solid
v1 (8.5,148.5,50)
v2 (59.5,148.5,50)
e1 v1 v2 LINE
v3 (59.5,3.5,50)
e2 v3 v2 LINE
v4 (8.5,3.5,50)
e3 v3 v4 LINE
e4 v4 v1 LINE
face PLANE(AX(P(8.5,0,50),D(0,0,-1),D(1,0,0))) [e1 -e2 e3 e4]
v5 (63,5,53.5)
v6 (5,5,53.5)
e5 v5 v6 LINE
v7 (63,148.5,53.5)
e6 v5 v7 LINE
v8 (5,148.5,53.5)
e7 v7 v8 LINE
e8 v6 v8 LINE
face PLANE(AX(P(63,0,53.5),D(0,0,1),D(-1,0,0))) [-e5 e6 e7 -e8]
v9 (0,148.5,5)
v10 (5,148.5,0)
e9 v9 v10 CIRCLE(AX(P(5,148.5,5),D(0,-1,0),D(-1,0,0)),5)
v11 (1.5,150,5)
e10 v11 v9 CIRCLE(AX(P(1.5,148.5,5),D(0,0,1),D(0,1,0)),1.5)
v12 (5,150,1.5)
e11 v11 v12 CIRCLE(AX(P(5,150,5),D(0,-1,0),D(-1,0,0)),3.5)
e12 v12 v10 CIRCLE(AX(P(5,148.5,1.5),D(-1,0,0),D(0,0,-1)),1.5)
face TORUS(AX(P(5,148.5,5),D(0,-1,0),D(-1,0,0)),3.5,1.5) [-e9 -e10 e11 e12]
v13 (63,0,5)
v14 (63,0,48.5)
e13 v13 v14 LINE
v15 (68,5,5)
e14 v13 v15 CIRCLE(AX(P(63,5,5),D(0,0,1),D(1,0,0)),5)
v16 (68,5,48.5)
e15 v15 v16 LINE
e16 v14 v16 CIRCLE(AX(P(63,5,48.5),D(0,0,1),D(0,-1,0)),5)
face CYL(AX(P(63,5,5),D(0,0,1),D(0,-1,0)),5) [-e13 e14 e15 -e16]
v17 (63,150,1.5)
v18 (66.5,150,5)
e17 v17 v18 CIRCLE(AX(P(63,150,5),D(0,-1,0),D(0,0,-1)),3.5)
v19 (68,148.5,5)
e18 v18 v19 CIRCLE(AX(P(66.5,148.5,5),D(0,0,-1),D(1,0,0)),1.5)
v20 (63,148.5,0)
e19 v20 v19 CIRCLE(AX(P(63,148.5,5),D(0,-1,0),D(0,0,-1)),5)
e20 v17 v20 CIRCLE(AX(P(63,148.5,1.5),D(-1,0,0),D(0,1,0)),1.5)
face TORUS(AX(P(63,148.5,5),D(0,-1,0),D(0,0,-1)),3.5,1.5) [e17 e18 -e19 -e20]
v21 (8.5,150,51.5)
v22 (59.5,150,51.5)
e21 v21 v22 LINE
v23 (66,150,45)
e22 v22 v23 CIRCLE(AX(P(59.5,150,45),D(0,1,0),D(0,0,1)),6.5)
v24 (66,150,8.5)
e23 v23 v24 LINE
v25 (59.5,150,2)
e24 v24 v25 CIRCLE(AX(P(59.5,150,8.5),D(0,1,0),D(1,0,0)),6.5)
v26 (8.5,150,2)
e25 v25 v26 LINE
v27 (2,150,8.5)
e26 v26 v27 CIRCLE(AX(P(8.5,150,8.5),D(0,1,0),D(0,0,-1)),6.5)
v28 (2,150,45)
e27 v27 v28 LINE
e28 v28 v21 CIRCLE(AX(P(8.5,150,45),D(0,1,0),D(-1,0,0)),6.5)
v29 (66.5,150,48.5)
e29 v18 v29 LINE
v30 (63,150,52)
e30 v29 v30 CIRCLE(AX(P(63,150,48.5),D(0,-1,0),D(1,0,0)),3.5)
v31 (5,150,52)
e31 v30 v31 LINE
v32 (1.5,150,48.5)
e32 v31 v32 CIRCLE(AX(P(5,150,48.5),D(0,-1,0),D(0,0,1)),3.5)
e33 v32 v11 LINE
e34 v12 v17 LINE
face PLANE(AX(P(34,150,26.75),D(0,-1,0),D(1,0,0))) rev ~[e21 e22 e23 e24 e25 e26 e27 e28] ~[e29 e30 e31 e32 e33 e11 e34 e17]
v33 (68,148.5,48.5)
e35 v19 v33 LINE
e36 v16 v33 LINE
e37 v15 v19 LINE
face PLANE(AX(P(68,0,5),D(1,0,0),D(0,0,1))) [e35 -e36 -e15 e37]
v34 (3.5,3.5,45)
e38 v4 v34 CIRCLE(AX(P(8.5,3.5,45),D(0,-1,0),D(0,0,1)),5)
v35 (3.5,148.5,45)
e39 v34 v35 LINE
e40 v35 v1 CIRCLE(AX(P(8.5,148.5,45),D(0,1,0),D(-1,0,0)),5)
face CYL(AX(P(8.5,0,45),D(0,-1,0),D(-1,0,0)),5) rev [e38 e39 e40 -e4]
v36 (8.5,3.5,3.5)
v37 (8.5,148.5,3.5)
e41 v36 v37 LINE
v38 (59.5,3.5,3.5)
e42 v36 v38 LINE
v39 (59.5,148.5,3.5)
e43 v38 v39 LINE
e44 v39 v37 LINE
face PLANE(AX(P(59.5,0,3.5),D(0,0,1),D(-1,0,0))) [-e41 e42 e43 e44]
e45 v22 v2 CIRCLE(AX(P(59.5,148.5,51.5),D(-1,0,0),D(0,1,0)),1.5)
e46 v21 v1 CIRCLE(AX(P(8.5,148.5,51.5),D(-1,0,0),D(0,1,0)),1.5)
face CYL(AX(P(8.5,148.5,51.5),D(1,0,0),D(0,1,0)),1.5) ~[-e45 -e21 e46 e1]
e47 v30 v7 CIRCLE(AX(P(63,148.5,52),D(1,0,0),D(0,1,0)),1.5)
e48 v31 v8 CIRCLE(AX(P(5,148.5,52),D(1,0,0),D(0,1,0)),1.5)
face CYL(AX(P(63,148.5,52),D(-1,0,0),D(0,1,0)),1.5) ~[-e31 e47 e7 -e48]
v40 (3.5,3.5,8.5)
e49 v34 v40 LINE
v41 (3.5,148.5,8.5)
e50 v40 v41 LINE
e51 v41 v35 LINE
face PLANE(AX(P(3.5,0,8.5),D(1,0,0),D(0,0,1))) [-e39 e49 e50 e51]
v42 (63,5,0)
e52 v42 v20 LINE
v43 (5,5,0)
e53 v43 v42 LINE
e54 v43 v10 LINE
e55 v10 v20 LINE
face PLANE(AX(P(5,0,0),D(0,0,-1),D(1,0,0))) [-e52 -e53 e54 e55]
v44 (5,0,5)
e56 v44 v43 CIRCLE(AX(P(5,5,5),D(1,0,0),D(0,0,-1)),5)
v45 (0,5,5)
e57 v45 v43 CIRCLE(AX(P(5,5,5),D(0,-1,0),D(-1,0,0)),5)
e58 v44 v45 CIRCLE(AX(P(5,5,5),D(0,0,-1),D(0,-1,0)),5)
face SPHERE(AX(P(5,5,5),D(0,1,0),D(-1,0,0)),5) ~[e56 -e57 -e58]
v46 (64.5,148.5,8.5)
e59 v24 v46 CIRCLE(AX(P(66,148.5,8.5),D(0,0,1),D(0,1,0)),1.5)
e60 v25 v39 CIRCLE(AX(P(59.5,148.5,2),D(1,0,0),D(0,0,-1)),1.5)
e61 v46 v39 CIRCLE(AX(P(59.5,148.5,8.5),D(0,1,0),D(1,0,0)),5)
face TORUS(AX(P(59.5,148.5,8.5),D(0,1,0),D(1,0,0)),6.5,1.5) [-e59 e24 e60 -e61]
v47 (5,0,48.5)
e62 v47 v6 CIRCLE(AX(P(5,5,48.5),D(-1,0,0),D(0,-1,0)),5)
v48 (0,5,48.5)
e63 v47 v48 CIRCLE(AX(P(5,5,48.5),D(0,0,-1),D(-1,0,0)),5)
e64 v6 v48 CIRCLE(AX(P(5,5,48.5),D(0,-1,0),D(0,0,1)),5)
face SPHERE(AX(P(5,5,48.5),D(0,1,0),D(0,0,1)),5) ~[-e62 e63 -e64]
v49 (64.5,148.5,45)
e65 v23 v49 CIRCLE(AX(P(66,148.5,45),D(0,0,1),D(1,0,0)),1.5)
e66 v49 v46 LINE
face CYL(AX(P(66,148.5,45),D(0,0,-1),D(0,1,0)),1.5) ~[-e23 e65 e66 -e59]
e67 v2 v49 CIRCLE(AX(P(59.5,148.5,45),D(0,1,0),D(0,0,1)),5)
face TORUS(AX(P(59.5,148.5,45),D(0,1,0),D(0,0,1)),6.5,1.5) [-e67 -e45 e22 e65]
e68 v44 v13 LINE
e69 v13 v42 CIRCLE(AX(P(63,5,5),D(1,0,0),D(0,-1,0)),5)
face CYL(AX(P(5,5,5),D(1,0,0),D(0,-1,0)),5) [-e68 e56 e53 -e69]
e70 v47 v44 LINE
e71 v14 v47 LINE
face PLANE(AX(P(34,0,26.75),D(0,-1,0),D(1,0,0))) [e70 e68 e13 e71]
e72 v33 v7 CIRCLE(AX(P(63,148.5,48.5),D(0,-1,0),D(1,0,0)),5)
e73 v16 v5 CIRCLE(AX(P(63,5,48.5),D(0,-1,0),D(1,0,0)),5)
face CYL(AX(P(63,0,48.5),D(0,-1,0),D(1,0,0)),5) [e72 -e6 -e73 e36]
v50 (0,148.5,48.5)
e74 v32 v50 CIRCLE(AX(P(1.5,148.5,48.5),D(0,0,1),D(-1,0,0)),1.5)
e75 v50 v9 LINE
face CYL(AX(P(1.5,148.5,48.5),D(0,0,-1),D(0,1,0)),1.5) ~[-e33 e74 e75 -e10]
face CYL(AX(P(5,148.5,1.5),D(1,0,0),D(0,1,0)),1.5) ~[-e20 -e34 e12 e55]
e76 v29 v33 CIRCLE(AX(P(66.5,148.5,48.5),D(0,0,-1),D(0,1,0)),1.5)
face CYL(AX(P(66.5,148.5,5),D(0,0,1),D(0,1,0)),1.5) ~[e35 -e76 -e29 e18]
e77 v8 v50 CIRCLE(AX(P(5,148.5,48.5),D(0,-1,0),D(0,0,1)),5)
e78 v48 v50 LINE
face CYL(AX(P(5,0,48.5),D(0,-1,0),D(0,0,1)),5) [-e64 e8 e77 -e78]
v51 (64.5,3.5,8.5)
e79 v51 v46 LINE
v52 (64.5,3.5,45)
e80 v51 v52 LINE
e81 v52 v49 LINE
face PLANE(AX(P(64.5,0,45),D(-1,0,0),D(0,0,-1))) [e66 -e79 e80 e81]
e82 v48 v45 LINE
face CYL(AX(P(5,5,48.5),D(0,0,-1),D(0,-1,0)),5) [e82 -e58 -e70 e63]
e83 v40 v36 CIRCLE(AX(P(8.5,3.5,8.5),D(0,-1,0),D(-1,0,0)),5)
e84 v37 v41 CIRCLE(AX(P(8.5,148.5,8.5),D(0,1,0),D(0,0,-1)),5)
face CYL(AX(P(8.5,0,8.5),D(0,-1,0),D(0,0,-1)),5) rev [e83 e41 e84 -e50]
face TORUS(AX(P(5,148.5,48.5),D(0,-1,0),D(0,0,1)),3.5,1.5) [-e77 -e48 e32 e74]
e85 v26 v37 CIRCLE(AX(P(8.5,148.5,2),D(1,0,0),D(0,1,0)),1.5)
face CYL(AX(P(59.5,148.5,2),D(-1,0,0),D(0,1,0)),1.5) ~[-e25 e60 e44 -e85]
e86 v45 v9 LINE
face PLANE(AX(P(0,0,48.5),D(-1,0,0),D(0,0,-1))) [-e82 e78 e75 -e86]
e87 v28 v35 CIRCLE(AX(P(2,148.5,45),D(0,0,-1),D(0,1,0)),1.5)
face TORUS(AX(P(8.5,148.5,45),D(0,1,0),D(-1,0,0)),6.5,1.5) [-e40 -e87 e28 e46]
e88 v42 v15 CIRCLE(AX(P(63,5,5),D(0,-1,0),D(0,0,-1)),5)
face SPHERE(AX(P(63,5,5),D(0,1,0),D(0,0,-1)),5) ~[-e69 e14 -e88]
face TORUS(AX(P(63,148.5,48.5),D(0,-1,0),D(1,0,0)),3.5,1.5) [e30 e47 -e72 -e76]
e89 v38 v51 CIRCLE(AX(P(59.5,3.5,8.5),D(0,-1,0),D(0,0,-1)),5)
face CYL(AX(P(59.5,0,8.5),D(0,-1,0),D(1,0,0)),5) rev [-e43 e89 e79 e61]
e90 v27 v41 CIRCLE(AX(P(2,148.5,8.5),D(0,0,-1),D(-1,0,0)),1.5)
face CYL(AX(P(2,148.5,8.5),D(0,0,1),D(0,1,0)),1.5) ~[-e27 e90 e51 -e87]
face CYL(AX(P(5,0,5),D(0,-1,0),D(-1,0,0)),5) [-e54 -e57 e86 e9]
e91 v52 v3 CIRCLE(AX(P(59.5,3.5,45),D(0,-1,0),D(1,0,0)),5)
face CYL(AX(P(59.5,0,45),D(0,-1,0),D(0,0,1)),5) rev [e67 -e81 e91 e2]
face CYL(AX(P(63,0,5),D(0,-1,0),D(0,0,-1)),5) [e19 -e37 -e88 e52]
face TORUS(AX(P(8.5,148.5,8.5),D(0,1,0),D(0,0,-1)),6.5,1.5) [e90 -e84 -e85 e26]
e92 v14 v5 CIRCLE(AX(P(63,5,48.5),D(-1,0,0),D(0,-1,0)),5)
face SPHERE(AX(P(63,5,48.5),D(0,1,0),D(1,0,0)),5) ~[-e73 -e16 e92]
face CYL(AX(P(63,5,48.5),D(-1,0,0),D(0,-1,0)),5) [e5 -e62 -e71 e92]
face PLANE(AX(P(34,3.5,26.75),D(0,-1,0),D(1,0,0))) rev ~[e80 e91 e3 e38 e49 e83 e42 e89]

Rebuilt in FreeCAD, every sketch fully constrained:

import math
import FreeCAD as App
import Part
import Sketcher

V = App.Vector
Q = App.Units.Quantity


def edges_at(feature, points):
    """Names of the edges that pass closest to the given points."""
    edges = feature.Shape.Edges
    near = lambda p: min(range(len(edges)), key=lambda i: edges[i].distToShape(Part.Vertex(*p))[0])
    return sorted({f"Edge{near(p) + 1}" for p in points})

doc = App.newDocument("Part")
params = doc.addObject("Spreadsheet::Sheet", "Params")
for row, (alias, value) in enumerate([
    ("sketch1_radius", "5 mm"),
    ("sketch1_width", "51 mm"),
    ("sketch1_height", "36.5 mm"),
    ("pad1_length", "3.5 mm"),
    ("sketch2_radius", "5 mm"),
    ("sketch2_width", "58 mm"),
    ("sketch2_width2", "51 mm"),
    ("sketch2_height", "43.5 mm"),
    ("sketch2_height2", "36.5 mm"),
    ("pad2_length", "150 mm"),
    ("fillet_radius", "5 mm"),
    ("fillet2_radius", "1.5 mm"),
], start=1):
    params.set(f"A{row}", alias)
    params.set(f"B{row}", "=" + value)
    params.setAlias(f"B{row}", alias)

body = doc.addObject("PartDesign::Body", "Body")

sketch1 = body.newObject("Sketcher::SketchObject", "Sketch")
sketch1.AttachmentSupport = (doc.getObject("XZ_Plane"), [""])
sketch1.MapMode = "FlatFace"
sketch1.addGeometry([
    Part.ArcOfCircle(Part.Circle(V(8, 8, 0), V(0, 0, 1), 5), math.radians(180), math.radians(270)),
    Part.LineSegment(V(8, 4, 0), V(60, 4, 0)),
    Part.ArcOfCircle(Part.Circle(V(60, 8, 0), V(0, 0, 1), 5), math.radians(-90), math.radians(0)),
    Part.LineSegment(V(64, 8, 0), V(64, 45, 0)),
    Part.ArcOfCircle(Part.Circle(V(60, 45, 0), V(0, 0, 1), 5), math.radians(0), math.radians(90)),
    Part.LineSegment(V(60, 50, 0), V(8, 50, 0)),
    Part.ArcOfCircle(Part.Circle(V(8, 45, 0), V(0, 0, 1), 5), math.radians(90), math.radians(180)),
    Part.LineSegment(V(4, 45, 0), V(4, 8, 0)),
], False)
sketch1.addConstraint([
    Sketcher.Constraint("Tangent", 0, 2, 1, 1),
    Sketcher.Constraint("Tangent", 1, 2, 2, 1),
    Sketcher.Constraint("Tangent", 2, 2, 3, 1),
    Sketcher.Constraint("Tangent", 3, 2, 4, 1),
    Sketcher.Constraint("Tangent", 4, 2, 5, 1),
    Sketcher.Constraint("Tangent", 5, 2, 6, 1),
    Sketcher.Constraint("Tangent", 6, 2, 7, 1),
    Sketcher.Constraint("Tangent", 7, 2, 0, 1),
    Sketcher.Constraint("Horizontal", 1),
    Sketcher.Constraint("Vertical", 3),
    Sketcher.Constraint("Horizontal", 5),
    Sketcher.Constraint("Vertical", 7),
    Sketcher.Constraint("Equal", 0, 2),
    Sketcher.Constraint("Equal", 2, 4),
    Sketcher.Constraint("Equal", 4, 6),
    Sketcher.Constraint("Radius", 0, Q("5 mm")),
    Sketcher.Constraint("DistanceX", 1, 1, 1, 2, Q("51 mm")),
    Sketcher.Constraint("DistanceY", 3, 1, 3, 2, Q("36.5 mm")),
    Sketcher.Constraint("DistanceY", -1, 1, 4, 3, Q("45 mm")),
    Sketcher.Constraint("DistanceX", -1, 1, 0, 3, Q("8.5 mm")),
])
sketch1.setExpression("Constraints[15]", "Params.sketch1_radius")
sketch1.setExpression("Constraints[16]", "Params.sketch1_width")
sketch1.setExpression("Constraints[17]", "Params.sketch1_height")
pad1 = body.newObject("PartDesign::Pad", "Pad")
pad1.Profile = sketch1
pad1.setExpression("Length", "Params.pad1_length")
pad1.Reversed = True

sketch2 = body.newObject("Sketcher::SketchObject", "Sketch001")
sketch2.AttachmentSupport = (doc.getObject("XZ_Plane"), [""])
sketch2.MapMode = "FlatFace"
sketch2.addGeometry([
    Part.ArcOfCircle(Part.Circle(V(5, 5, 0), V(0, 0, 1), 5), math.radians(180), math.radians(270)),
    Part.LineSegment(V(5, 0, 0), V(63, 0, 0)),
    Part.ArcOfCircle(Part.Circle(V(63, 5, 0), V(0, 0, 1), 5), math.radians(-90), math.radians(0)),
    Part.LineSegment(V(68, 5, 0), V(68, 48, 0)),
    Part.ArcOfCircle(Part.Circle(V(63, 48, 0), V(0, 0, 1), 5), math.radians(0), math.radians(90)),
    Part.LineSegment(V(63, 54, 0), V(5, 54, 0)),
    Part.ArcOfCircle(Part.Circle(V(5, 48, 0), V(0, 0, 1), 5), math.radians(90), math.radians(180)),
    Part.LineSegment(V(0, 48, 0), V(0, 5, 0)),
    Part.ArcOfCircle(Part.Circle(V(60, 8, 0), V(0, 0, 1), 5), math.radians(-90), math.radians(0)),
    Part.LineSegment(V(60, 4, 0), V(8, 4, 0)),
    Part.ArcOfCircle(Part.Circle(V(8, 8, 0), V(0, 0, 1), 5), math.radians(180), math.radians(270)),
    Part.LineSegment(V(4, 8, 0), V(4, 45, 0)),
    Part.ArcOfCircle(Part.Circle(V(8, 45, 0), V(0, 0, 1), 5), math.radians(90), math.radians(180)),
    Part.LineSegment(V(8, 50, 0), V(60, 50, 0)),
    Part.ArcOfCircle(Part.Circle(V(60, 45, 0), V(0, 0, 1), 5), math.radians(0), math.radians(90)),
    Part.LineSegment(V(64, 45, 0), V(64, 8, 0)),
], False)
sketch2.addConstraint([
    Sketcher.Constraint("Tangent", 0, 2, 1, 1),
    Sketcher.Constraint("Tangent", 1, 2, 2, 1),
    Sketcher.Constraint("Tangent", 2, 2, 3, 1),
    Sketcher.Constraint("Tangent", 3, 2, 4, 1),
    Sketcher.Constraint("Tangent", 4, 2, 5, 1),
    Sketcher.Constraint("Tangent", 5, 2, 6, 1),
    Sketcher.Constraint("Tangent", 6, 2, 7, 1),
    Sketcher.Constraint("Tangent", 7, 2, 0, 1),
    Sketcher.Constraint("Tangent", 8, 1, 9, 1),
    Sketcher.Constraint("Tangent", 9, 2, 10, 2),
    Sketcher.Constraint("Tangent", 10, 1, 11, 1),
    Sketcher.Constraint("Tangent", 11, 2, 12, 2),
    Sketcher.Constraint("Tangent", 12, 1, 13, 1),
    Sketcher.Constraint("Tangent", 13, 2, 14, 2),
    Sketcher.Constraint("Tangent", 14, 1, 15, 1),
    Sketcher.Constraint("Tangent", 15, 2, 8, 2),
    Sketcher.Constraint("Horizontal", 1),
    Sketcher.Constraint("Vertical", 3),
    Sketcher.Constraint("Horizontal", 5),
    Sketcher.Constraint("Vertical", 7),
    Sketcher.Constraint("Horizontal", 9),
    Sketcher.Constraint("Vertical", 11),
    Sketcher.Constraint("Horizontal", 13),
    Sketcher.Constraint("Vertical", 15),
    Sketcher.Constraint("Equal", 0, 2),
    Sketcher.Constraint("Equal", 2, 4),
    Sketcher.Constraint("Equal", 4, 6),
    Sketcher.Constraint("Equal", 6, 8),
    Sketcher.Constraint("Equal", 8, 10),
    Sketcher.Constraint("Equal", 10, 12),
    Sketcher.Constraint("Equal", 12, 14),
    Sketcher.Constraint("PointOnObject", 0, 2, -1),
    Sketcher.Constraint("PointOnObject", 6, 2, -2),
    Sketcher.Constraint("Radius", 0, Q("5 mm")),
    Sketcher.Constraint("DistanceX", 1, 1, 1, 2, Q("58 mm")),
    Sketcher.Constraint("DistanceX", 9, 2, 9, 1, Q("51 mm")),
    Sketcher.Constraint("DistanceY", 3, 1, 3, 2, Q("43.5 mm")),
    Sketcher.Constraint("DistanceY", 11, 1, 11, 2, Q("36.5 mm")),
    Sketcher.Constraint("DistanceY", -1, 1, 12, 3, Q("45 mm")),
    Sketcher.Constraint("DistanceX", -1, 1, 8, 3, Q("59.5 mm")),
])
sketch2.setExpression("Constraints[33]", "Params.sketch2_radius")
sketch2.setExpression("Constraints[34]", "Params.sketch2_width")
sketch2.setExpression("Constraints[35]", "Params.sketch2_width2")
sketch2.setExpression("Constraints[36]", "Params.sketch2_height")
sketch2.setExpression("Constraints[37]", "Params.sketch2_height2")
pad2 = body.newObject("PartDesign::Pad", "Pad001")
pad2.Profile = sketch2
pad2.setExpression("Length", "Params.pad2_length")
pad2.Reversed = True
doc.recompute()

fillet = body.newObject("PartDesign::Fillet", "Fillet")
fillet.Base = (pad2, edges_at(pad2, [
    (34, 0, 53.5),
    (1.464, 0, 52.036),
    (0, 0, 26.75),
    (1.464, 0, 1.464),
    (34, 0, 0),
    (66.536, 0, 1.464),
    (68, 0, 26.75),
    (66.536, 0, 52.036),
]))
fillet.setExpression("Radius", "Params.fillet_radius")
doc.recompute()

fillet2 = body.newObject("PartDesign::Fillet", "Fillet001")
fillet2.Base = (fillet, edges_at(fillet, [
    (34, 150, 53.5),
    (34, 150, 50),
    (1.464, 150, 52.036),
    (4.964, 150, 48.536),
    (0, 150, 26.75),
    (3.5, 150, 26.75),
    (1.464, 150, 1.464),
    (4.964, 150, 4.964),
    (34, 150, 3.5),
    (34, 150, 0),
    (66.536, 150, 1.464),
    (63.036, 150, 4.964),
    (68, 150, 26.75),
    (64.5, 150, 26.75),
    (63.036, 150, 48.536),
    (66.536, 150, 52.036),
]))
fillet2.setExpression("Radius", "Params.fillet2_radius")

doc.recompute()
